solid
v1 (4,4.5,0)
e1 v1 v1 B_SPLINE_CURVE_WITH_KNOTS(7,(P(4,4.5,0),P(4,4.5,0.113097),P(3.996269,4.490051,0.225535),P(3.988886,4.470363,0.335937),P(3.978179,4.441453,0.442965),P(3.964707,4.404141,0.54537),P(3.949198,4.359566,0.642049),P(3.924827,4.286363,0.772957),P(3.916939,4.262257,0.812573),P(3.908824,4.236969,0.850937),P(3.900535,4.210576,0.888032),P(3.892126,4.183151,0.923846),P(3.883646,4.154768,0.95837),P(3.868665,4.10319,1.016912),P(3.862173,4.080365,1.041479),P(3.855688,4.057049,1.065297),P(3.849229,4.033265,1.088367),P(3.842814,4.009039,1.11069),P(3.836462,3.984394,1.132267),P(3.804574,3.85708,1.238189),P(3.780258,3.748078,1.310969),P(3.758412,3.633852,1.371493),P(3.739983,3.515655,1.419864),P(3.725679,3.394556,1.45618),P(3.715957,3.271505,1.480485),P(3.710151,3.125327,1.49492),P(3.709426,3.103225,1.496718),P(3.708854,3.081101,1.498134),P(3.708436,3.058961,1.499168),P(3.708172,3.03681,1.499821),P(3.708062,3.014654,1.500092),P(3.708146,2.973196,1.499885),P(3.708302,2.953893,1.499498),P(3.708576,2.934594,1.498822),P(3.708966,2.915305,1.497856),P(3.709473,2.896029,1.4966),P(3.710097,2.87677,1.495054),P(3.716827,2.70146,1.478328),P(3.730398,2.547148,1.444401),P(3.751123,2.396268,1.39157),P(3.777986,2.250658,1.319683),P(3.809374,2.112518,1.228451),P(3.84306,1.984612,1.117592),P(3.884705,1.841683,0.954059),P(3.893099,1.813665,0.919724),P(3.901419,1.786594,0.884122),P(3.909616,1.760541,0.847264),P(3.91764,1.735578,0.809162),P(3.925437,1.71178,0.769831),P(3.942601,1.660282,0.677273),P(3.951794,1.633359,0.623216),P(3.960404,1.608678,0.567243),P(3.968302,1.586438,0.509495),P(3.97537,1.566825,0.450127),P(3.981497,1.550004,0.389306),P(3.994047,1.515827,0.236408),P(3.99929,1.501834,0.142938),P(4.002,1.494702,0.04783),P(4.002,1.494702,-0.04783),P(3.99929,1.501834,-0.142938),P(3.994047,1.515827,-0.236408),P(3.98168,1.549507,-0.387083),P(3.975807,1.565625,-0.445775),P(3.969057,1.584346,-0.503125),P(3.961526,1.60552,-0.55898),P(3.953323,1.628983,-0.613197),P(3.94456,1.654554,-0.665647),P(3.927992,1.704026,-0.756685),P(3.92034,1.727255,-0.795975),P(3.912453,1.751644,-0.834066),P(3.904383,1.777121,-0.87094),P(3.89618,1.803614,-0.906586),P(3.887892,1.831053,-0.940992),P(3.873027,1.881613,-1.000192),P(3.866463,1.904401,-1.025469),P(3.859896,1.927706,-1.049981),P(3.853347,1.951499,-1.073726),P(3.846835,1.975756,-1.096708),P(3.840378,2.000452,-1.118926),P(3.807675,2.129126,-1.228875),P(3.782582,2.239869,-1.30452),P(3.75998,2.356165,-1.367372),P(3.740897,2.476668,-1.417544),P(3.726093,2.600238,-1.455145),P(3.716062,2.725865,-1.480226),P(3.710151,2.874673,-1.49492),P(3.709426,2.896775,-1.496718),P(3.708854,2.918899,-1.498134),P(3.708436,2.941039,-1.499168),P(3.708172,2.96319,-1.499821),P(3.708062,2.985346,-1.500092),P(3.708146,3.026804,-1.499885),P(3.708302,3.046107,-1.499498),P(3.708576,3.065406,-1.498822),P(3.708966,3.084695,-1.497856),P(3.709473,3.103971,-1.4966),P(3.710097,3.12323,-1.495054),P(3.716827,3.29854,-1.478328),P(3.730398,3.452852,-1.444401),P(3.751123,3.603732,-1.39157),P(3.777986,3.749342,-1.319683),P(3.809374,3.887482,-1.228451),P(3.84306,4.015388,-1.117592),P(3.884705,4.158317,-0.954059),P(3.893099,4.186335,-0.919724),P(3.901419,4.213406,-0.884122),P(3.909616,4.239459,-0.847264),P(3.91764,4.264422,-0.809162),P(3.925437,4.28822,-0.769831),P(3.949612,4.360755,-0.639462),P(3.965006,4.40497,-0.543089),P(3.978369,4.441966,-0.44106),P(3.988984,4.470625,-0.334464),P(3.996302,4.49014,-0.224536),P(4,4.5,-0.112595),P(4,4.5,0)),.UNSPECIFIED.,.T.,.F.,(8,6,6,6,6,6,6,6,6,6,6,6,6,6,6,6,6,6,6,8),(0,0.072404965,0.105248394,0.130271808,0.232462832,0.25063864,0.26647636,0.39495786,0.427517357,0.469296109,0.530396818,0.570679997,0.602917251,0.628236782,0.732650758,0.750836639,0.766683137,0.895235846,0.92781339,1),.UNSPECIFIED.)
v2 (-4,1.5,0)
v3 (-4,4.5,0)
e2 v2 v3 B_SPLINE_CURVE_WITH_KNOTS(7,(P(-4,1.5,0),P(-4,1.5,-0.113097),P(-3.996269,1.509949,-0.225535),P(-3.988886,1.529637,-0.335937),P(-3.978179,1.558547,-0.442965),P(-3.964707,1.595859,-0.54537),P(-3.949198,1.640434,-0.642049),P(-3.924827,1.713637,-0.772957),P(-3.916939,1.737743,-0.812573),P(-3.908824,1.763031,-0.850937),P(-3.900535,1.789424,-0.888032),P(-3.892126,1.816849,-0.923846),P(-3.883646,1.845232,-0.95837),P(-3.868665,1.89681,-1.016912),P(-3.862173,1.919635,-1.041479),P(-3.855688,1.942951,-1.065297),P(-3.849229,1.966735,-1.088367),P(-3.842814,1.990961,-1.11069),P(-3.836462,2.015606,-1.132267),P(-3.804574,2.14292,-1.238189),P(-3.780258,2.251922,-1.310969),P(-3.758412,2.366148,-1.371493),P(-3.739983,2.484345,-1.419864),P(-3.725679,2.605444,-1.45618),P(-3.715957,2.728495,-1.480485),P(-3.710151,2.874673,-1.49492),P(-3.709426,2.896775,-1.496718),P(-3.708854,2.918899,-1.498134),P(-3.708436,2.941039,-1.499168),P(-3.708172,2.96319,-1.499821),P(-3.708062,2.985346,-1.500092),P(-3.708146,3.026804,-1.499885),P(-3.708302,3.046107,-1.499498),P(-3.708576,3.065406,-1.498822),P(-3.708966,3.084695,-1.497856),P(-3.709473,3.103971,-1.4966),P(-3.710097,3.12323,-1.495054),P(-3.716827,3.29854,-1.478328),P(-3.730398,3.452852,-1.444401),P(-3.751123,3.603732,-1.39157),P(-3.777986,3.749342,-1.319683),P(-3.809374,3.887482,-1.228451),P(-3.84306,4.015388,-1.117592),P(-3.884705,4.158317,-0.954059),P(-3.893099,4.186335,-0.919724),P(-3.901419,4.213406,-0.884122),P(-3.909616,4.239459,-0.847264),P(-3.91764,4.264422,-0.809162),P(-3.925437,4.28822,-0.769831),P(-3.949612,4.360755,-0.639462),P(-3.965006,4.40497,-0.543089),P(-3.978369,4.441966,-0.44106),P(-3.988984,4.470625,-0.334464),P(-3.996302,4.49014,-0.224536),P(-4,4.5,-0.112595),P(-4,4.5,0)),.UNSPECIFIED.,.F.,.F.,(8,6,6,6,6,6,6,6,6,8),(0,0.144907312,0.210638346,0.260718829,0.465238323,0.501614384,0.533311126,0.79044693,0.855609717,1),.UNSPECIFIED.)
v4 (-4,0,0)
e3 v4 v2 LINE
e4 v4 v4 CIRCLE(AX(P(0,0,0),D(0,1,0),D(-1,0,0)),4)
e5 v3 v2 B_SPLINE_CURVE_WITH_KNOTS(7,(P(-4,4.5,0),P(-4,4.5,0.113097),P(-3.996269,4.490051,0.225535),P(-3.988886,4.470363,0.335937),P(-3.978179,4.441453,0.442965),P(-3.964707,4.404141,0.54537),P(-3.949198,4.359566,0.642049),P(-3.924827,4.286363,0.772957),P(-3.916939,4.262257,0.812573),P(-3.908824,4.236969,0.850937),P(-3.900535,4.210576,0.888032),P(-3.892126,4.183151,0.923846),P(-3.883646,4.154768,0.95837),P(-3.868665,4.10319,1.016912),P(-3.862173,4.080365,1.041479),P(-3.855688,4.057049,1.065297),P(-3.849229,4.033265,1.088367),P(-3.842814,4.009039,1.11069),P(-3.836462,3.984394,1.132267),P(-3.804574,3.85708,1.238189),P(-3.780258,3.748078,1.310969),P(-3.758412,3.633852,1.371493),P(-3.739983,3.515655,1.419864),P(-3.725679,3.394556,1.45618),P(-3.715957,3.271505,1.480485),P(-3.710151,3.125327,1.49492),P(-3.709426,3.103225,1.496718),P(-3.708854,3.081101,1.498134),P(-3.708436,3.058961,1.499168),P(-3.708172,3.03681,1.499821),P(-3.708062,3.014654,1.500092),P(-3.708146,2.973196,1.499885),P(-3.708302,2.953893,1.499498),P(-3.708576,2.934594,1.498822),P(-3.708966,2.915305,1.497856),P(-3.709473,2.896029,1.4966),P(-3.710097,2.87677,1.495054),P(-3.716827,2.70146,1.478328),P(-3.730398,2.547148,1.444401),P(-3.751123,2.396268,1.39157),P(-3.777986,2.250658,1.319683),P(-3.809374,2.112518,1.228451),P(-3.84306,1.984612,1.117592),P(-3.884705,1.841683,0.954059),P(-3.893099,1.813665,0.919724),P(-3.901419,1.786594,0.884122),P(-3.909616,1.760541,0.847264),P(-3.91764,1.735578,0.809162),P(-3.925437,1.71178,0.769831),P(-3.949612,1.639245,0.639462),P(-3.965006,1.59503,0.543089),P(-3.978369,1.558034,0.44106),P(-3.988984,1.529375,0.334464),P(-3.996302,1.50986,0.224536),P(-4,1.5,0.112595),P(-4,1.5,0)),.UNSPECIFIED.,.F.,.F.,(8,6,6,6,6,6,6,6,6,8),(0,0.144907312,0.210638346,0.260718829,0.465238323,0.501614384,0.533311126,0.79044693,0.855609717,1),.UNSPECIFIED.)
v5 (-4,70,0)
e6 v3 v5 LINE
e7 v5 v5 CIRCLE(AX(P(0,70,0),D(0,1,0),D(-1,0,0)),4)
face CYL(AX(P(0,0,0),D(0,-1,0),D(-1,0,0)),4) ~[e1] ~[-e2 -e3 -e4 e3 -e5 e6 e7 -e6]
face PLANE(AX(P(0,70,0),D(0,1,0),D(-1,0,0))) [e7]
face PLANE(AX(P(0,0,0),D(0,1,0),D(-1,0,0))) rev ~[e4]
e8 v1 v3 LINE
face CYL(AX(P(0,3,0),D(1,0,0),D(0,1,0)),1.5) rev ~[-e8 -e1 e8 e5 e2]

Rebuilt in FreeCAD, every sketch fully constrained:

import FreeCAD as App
import Part
import Sketcher
from FreeCAD import Vector

doc = App.newDocument("Part")
body = doc.addObject("PartDesign::Body", "Body")

# Sketch on XZ plane
sketch1 = body.newObject("Sketcher::SketchObject", "Sketch")
sketch1.AttachmentSupport = (doc.getObject("XZ_Plane"), [""])
sketch1.MapMode = "FlatFace"
sketch1.addGeometry(Part.Circle(Vector(0, 0, 0), Vector(0, 0, 1), 4), False)
sketch1.addConstraint([
    Sketcher.Constraint("Coincident", 0, 3, -1, 1),
    Sketcher.Constraint("Diameter", 0, 8.0),
])
pad1 = body.newObject("PartDesign::Pad", "Pad")
pad1.Profile = sketch1
pad1.Length = 70
pad1.Reversed = True

# Sketch on YZ plane
sketch2 = body.newObject("Sketcher::SketchObject", "Sketch001")
sketch2.AttachmentSupport = (doc.getObject("YZ_Plane"), [""])
sketch2.MapMode = "FlatFace"
sketch2.addGeometry(Part.Circle(Vector(3, 0, 0), Vector(0, 0, 1), 1.5), False)
sketch2.addConstraint([
    Sketcher.Constraint("PointOnObject", 0, 3, -1),
    Sketcher.Constraint("Diameter", 0, 3.0),
    Sketcher.Constraint("DistanceX", -1, 1, 0, 3, 3.0),
])
pocket1 = body.newObject("PartDesign::Pocket", "Pocket")
pocket1.Profile = sketch2
pocket1.Length = 70
pocket1.Midplane = True

doc.recompute()
